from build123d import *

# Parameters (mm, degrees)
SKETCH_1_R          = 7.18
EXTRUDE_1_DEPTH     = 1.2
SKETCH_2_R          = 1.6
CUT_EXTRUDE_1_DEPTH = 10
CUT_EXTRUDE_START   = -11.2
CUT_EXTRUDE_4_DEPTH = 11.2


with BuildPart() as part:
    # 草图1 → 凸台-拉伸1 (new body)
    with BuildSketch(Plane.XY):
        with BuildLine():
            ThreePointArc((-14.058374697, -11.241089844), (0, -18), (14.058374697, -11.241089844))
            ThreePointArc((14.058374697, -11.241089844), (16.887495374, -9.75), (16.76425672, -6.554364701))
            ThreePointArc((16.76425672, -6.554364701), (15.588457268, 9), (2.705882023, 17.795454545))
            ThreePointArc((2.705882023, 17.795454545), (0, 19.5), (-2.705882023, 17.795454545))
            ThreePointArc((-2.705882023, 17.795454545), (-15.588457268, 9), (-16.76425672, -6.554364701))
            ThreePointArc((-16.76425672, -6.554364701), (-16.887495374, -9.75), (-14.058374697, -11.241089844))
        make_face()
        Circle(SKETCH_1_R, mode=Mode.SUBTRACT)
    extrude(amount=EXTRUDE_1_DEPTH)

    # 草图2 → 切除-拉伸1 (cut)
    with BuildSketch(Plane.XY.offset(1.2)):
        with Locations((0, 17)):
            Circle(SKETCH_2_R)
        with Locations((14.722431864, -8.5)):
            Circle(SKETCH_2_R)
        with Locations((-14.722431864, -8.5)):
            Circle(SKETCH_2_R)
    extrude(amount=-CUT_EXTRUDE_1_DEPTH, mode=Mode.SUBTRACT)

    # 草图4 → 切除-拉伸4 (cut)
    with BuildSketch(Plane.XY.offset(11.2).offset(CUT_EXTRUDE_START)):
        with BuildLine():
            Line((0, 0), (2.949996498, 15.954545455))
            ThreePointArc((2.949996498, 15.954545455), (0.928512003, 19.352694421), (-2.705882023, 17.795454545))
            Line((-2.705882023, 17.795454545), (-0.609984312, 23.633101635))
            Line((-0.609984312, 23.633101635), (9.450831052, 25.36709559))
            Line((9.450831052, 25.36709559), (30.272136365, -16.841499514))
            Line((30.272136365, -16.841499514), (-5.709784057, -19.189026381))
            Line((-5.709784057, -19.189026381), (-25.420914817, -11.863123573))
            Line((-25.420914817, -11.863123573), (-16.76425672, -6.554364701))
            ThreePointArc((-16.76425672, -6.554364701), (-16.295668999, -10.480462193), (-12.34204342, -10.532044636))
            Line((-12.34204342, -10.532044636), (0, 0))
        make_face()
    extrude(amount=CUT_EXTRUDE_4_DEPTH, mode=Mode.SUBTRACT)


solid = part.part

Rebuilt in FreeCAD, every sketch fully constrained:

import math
import FreeCAD as App
import Part
import Sketcher

V = App.Vector

doc = App.newDocument("Part")
body = doc.addObject("PartDesign::Body", "Body")

# Sketch on XY plane
sketch1 = body.newObject("Sketcher::SketchObject", "Sketch")
sketch1.AttachmentSupport = (doc.getObject("XY_Plane"), [""])
sketch1.MapMode = "FlatFace"
sketch1.addGeometry([
    Part.ArcOfCircle(Part.Circle(V(0, 0, 0), V(0, 0, 1), 18), math.radians(-141), math.radians(-39)),  # 0
    Part.ArcOfCircle(Part.Circle(V(14.3, -8.2, 0), V(0, 0, 1), 3), math.radians(-94), math.radians(34)),  # 1
    Part.ArcOfCircle(Part.Circle(V(0, 0, 0), V(0, 0, 1), 18), math.radians(-21), math.radians(81)),  # 2
    Part.ArcOfCircle(Part.Circle(V(0, 16.5, 0), V(0, 0, 1), 3), math.radians(26), math.radians(154)),  # 3
    Part.ArcOfCircle(Part.Circle(V(0, 0, 0), V(0, 0, 1), 18), math.radians(99), math.radians(201)),  # 4
    Part.ArcOfCircle(Part.Circle(V(-14.3, -8.2, 0), V(0, 0, 1), 3), math.radians(146), math.radians(274)),  # 5
    Part.Circle(V(0, 0, 0), V(0, 0, 1), 7.2),  # 6
], False)
sketch1.addConstraint([
    Sketcher.Constraint("Coincident", 0, 2, 1, 1),
    Sketcher.Constraint("Coincident", 1, 2, 2, 1),
    Sketcher.Constraint("Coincident", 2, 2, 3, 1),
    Sketcher.Constraint("Coincident", 3, 2, 4, 1),
    Sketcher.Constraint("Coincident", 4, 2, 5, 1),
    Sketcher.Constraint("Coincident", 5, 2, 0, 1),
    Sketcher.Constraint("Coincident", 0, 3, -1, 1),
    Sketcher.Constraint("Coincident", 2, 3, -1, 1),
    Sketcher.Constraint("Coincident", 4, 3, -1, 1),
    Sketcher.Constraint("Coincident", 6, 3, -1, 1),
    Sketcher.Constraint("Equal", 0, 2),
    Sketcher.Constraint("Equal", 1, 3),
    Sketcher.Constraint("Equal", 2, 4),
    Sketcher.Constraint("Equal", 3, 5),
    Sketcher.Constraint("Symmetric", 1, 3, 5, 3, -2),
    Sketcher.Constraint("PointOnObject", 3, 3, -2),
    Sketcher.Constraint("Radius", 0, 18.0),
    Sketcher.Constraint("Radius", 1, 3.0),
    Sketcher.Constraint("Diameter", 6, 14.36),
    Sketcher.Constraint("DistanceY", -1, 1, 3, 3, 16.5),
    Sketcher.Constraint("DistanceY", 1, 3, -1, 1, 8.25),
    Sketcher.Constraint("DistanceX", -1, 1, 1, 3, 14.289419),
])
pad1 = body.newObject("PartDesign::Pad", "Pad")
pad1.Profile = sketch1
pad1.Length = 1.2

# Sketch on XY plane
sketch2 = body.newObject("Sketcher::SketchObject", "Sketch001")
sketch2.AttachmentSupport = (doc.getObject("XY_Plane"), [""])
sketch2.MapMode = "FlatFace"
sketch2.AttachmentOffset = App.Placement(V(0, 0, 1.2), App.Rotation())
sketch2.addGeometry([
    Part.Circle(V(0, 17, 0), V(0, 0, 1), 1.6),
    Part.Circle(V(14.7, -8.5, 0), V(0, 0, 1), 1.6),
    Part.Circle(V(-14.7, -8.5, 0), V(0, 0, 1), 1.6),
], False)
sketch2.addConstraint([
    Sketcher.Constraint("Equal", 0, 1),
    Sketcher.Constraint("Equal", 1, 2),
    Sketcher.Constraint("Symmetric", 1, 3, 2, 3, -2),
    Sketcher.Constraint("PointOnObject", 0, 3, -2),
    Sketcher.Constraint("Diameter", 0, 3.2),
    Sketcher.Constraint("DistanceY", -1, 1, 0, 3, 17.0),
    Sketcher.Constraint("DistanceY", 1, 3, -1, 1, 8.5),
    Sketcher.Constraint("DistanceX", -1, 1, 1, 3, 14.722432),
])
pocket1 = body.newObject("PartDesign::Pocket", "Pocket")
pocket1.Profile = sketch2
pocket1.Length = 10

# Sketch on XY plane
sketch3 = body.newObject("Sketcher::SketchObject", "Sketch002")
sketch3.AttachmentSupport = (doc.getObject("XY_Plane"), [""])
sketch3.MapMode = "FlatFace"
sketch3.addGeometry([
    Part.LineSegment(V(2.9, 16, 0), V(0, 0, 0)),  # 0
    Part.LineSegment(V(0, 0, 0), V(-12.3, -10.5, 0)),  # 1
    Part.ArcOfCircle(Part.Circle(V(-14.3, -8.2, 0), V(0, 0, 1), 3), math.radians(146), math.radians(310)),  # 2
    Part.LineSegment(V(-16.8, -6.6, 0), V(-25.4, -11.9, 0)),  # 3
    Part.LineSegment(V(-25.4, -11.9, 0), V(-5.7, -19.2, 0)),  # 4
    Part.LineSegment(V(-5.7, -19.2, 0), V(30.3, -16.8, 0)),  # 5
    Part.LineSegment(V(30.3, -16.8, 0), V(9.5, 25.4, 0)),  # 6
    Part.LineSegment(V(9.5, 25.4, 0), V(-0.6, 23.6, 0)),  # 7
    Part.LineSegment(V(-0.6, 23.6, 0), V(-2.7, 17.8, 0)),  # 8
    Part.ArcOfCircle(Part.Circle(V(0, 16.5, 0), V(0, 0, 1), 3), math.radians(-10), math.radians(154)),  # 9
], False)
sketch3.addConstraint([
    Sketcher.Constraint("Coincident", 0, 2, 1, 1),
    Sketcher.Constraint("Tangent", 1, 2, 2, 2),
    Sketcher.Constraint("Coincident", 2, 1, 3, 1),
    Sketcher.Constraint("Coincident", 3, 2, 4, 1),
    Sketcher.Constraint("Coincident", 4, 2, 5, 1),
    Sketcher.Constraint("Coincident", 5, 2, 6, 1),
    Sketcher.Constraint("Coincident", 6, 2, 7, 1),
    Sketcher.Constraint("Coincident", 7, 2, 8, 1),
    Sketcher.Constraint("Coincident", 8, 2, 9, 2),
    Sketcher.Constraint("Tangent", 9, 1, 0, 1),
    Sketcher.Constraint("Coincident", 0, 2, -1, 1),
    Sketcher.Constraint("Equal", 2, 9),
    Sketcher.Constraint("PointOnObject", 9, 3, -2),
    Sketcher.Constraint("Equal", 0, 1),
    Sketcher.Constraint("Radius", 2, 3.0),
    Sketcher.Constraint("DistanceY", -1, 1, 9, 3, 16.5),
    Sketcher.Constraint("DistanceY", 2, 3, -1, 1, 8.25),
    Sketcher.Constraint("DistanceY", 5, 2, -1, 1, 16.8415),
    Sketcher.Constraint("DistanceY", -1, 1, 7, 2, 23.633102),
    Sketcher.Constraint("Distance", 7, 10.20915),
    Sketcher.Constraint("DistanceX", -1, 1, 6, 2, 9.450831),
    Sketcher.Constraint("DistanceY", 1, 2, 2, 1, 3.97768),
    Sketcher.Constraint("DistanceX", 3, 2, 2, 1, 8.656658),
    Sketcher.Constraint("DistanceY", 3, 2, 2, 1, 5.308759),
    Sketcher.Constraint("DistanceX", 1, 2, 4, 2, 6.632259),
    Sketcher.Constraint("DistanceY", 4, 2, 1, 2, 8.656982),
    Sketcher.Constraint("DistanceX", 4, 2, 5, 2, 35.98192),
    Sketcher.Constraint("DistanceY", 2, 1, 6, 2, 31.92146),
    Sketcher.Constraint("DistanceY", 8, 2, 6, 2, 7.571641),
])
pocket2 = body.newObject("PartDesign::Pocket", "Pocket001")
pocket2.Profile = sketch3
pocket2.Length = 11.2
pocket2.Reversed = True

doc.recompute()
